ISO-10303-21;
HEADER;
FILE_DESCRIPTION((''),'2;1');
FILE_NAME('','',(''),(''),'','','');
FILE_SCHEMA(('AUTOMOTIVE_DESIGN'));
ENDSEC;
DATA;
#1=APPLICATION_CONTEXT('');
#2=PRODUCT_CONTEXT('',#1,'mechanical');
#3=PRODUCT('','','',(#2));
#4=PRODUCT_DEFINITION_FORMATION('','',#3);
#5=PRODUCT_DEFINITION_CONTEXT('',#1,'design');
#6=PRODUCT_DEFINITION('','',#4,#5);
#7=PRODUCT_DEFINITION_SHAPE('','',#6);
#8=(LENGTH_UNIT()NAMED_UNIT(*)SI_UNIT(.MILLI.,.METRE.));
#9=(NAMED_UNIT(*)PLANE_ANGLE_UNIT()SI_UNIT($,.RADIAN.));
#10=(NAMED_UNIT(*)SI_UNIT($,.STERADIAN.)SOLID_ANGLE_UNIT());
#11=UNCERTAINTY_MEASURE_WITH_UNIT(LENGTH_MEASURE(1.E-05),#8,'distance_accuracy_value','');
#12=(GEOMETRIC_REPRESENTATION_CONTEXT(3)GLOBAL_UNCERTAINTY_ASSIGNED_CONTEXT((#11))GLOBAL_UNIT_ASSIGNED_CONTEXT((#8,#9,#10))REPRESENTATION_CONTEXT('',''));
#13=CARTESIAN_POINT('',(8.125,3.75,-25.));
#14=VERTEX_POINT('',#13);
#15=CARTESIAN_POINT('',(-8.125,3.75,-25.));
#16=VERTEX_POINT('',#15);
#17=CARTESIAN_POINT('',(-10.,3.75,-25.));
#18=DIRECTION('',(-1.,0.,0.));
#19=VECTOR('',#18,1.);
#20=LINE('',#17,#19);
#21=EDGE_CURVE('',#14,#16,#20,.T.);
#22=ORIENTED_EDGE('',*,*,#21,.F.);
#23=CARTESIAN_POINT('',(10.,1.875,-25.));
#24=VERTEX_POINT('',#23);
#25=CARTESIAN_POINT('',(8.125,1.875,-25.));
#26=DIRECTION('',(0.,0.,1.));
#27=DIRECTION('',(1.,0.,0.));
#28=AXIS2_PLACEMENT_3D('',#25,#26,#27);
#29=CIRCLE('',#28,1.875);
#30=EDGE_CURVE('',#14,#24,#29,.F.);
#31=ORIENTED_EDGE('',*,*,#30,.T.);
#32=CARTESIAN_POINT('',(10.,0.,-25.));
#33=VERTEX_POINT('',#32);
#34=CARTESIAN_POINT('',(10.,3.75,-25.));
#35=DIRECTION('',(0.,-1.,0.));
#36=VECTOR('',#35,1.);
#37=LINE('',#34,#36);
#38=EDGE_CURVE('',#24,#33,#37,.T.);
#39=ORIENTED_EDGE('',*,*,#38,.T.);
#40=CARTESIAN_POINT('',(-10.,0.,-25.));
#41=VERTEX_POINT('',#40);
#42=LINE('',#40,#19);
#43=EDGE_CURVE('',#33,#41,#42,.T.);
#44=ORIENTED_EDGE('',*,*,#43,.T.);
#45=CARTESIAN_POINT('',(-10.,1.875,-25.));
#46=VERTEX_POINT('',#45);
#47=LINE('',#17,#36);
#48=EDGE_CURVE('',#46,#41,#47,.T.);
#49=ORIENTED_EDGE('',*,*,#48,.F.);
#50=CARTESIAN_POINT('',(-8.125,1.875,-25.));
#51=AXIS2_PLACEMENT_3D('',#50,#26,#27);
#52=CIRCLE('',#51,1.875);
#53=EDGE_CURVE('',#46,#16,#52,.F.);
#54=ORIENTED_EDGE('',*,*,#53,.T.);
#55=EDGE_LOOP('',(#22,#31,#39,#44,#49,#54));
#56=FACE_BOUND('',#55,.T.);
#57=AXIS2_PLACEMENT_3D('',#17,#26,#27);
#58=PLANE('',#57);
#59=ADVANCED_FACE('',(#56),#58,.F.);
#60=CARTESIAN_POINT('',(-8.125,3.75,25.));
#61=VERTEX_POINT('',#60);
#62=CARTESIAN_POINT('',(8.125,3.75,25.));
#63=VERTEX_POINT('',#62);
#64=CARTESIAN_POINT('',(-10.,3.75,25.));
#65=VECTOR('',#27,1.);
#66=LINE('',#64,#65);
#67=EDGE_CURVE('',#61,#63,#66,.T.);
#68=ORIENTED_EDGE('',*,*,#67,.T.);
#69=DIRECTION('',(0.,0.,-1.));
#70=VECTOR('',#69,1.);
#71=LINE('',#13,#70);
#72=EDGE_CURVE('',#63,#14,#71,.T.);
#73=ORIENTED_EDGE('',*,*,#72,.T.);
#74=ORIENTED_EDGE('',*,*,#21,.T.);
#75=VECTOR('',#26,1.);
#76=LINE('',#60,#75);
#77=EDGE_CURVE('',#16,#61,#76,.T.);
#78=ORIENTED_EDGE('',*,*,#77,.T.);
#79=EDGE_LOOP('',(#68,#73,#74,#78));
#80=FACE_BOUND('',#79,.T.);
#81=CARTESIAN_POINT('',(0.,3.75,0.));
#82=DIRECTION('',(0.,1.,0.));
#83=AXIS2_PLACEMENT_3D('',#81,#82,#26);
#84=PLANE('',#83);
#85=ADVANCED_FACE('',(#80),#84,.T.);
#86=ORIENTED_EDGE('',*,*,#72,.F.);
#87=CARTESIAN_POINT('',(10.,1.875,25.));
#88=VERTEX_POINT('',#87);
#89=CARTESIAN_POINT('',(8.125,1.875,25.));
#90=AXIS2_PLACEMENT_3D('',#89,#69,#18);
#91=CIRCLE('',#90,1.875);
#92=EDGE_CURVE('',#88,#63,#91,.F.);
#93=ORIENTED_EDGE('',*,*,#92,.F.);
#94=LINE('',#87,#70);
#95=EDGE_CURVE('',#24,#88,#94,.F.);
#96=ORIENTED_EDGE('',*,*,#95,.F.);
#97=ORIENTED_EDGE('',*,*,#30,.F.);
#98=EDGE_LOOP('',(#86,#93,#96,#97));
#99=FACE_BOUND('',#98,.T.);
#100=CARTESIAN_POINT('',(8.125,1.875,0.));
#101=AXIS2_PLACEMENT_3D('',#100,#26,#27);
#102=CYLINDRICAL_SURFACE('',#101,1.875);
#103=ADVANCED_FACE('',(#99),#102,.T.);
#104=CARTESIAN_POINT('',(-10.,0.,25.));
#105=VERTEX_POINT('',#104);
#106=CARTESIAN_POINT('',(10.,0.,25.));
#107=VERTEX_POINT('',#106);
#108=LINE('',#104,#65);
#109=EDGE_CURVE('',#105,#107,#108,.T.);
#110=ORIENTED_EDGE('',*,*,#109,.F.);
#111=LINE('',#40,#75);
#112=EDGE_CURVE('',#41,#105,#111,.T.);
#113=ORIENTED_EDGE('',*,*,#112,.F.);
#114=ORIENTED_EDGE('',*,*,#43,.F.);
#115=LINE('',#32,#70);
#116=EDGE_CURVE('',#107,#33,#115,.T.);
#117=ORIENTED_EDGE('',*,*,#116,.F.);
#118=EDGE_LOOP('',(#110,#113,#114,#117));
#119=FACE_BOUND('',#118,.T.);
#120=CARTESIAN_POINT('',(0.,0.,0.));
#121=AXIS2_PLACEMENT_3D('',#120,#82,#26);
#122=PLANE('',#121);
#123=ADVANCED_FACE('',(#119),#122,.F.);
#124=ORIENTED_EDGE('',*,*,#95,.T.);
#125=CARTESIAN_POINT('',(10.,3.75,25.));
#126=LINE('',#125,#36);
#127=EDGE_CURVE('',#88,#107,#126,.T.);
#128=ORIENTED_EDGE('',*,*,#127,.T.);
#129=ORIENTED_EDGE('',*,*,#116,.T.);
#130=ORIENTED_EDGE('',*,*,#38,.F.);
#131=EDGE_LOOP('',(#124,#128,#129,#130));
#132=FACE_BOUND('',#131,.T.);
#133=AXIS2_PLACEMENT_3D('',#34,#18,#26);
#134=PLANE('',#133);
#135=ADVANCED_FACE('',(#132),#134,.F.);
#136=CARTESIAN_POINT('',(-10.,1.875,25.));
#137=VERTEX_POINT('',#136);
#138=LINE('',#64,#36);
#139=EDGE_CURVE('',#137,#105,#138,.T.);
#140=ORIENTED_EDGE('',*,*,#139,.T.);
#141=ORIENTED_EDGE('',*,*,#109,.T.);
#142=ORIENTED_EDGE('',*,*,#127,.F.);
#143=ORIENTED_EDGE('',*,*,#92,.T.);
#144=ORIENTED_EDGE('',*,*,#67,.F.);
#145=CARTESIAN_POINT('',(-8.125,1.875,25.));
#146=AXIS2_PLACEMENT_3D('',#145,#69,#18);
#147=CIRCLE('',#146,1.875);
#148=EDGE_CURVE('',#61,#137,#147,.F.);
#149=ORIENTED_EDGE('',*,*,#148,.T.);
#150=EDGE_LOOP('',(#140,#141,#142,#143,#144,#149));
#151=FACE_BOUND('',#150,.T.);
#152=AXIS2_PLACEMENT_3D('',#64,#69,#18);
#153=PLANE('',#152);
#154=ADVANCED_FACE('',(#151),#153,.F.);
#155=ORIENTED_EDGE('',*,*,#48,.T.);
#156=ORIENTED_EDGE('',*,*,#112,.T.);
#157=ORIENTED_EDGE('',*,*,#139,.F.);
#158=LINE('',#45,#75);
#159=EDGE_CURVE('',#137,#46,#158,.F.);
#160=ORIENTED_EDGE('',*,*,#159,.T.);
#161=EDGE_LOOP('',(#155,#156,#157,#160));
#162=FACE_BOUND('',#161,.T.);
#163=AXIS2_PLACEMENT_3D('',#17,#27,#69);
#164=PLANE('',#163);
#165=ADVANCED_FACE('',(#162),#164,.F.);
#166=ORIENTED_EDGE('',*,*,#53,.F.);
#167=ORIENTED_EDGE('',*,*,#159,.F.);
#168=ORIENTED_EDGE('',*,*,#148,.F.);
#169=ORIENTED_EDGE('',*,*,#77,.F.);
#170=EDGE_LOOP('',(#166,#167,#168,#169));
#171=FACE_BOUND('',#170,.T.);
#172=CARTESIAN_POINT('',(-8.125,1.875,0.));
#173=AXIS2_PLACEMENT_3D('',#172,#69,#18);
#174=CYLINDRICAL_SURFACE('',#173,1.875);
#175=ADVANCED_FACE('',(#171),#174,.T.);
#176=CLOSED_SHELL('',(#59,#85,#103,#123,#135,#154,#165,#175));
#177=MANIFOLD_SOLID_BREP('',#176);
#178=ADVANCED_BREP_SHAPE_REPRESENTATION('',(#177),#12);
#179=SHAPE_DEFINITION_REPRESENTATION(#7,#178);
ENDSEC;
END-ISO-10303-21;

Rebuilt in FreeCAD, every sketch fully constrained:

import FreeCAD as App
import Part
import Sketcher


def edges_at(feature, points):
    """Names of the edges that pass closest to the given points."""
    edges = feature.Shape.Edges
    near = lambda p: min(range(len(edges)), key=lambda i: edges[i].distToShape(Part.Vertex(*p))[0])
    return sorted({f"Edge{near(p) + 1}" for p in points})

doc = App.newDocument("Part")
body = doc.addObject("PartDesign::Body", "Body")

# Sketch on XZ plane
sketch1 = doc.addObject("Sketcher::SketchObject", "Sketch")
body.addObject(sketch1)
sketch1.AttachmentSupport = (doc.XZ_Plane, [""])
sketch1.MapMode = "FlatFace"
sketch1.addGeometry([
    Part.LineSegment(App.Vector(-10, -25, 0), App.Vector(-10, 25, 0)),
    Part.LineSegment(App.Vector(-10, 25, 0), App.Vector(10, 25, 0)),
    Part.LineSegment(App.Vector(10, 25, 0), App.Vector(10, -25, 0)),
    Part.LineSegment(App.Vector(10, -25, 0), App.Vector(-10, -25, 0)),
], False)
sketch1.addConstraint([
    Sketcher.Constraint("Coincident", 0, 2, 1, 1),
    Sketcher.Constraint("Coincident", 1, 2, 2, 1),
    Sketcher.Constraint("Coincident", 2, 2, 3, 1),
    Sketcher.Constraint("Coincident", 3, 2, 0, 1),
    Sketcher.Constraint("Vertical", 0),
    Sketcher.Constraint("Horizontal", 1),
    Sketcher.Constraint("Vertical", 2),
    Sketcher.Constraint("Horizontal", 3),
    Sketcher.Constraint("Symmetric", 0, 2, 2, 2, -1, 1),
    Sketcher.Constraint("DistanceX", 1, 1, 1, 2, 20.0),
    Sketcher.Constraint("DistanceY", 0, 1, 0, 2, 50.0),
])
pad1 = doc.addObject("PartDesign::Pad", "Pad")
body.addObject(pad1)
pad1.Profile = sketch1
pad1.Length = 3.75
pad1.Reversed = True
doc.recompute()

fillet = doc.addObject("PartDesign::Fillet", "Fillet")
body.addObject(fillet)
fillet.Base = (pad1, edges_at(pad1, [(-10, 3.75, 0), (10, 3.75, 0)]))
fillet.Radius = 1.875

doc.recompute()
